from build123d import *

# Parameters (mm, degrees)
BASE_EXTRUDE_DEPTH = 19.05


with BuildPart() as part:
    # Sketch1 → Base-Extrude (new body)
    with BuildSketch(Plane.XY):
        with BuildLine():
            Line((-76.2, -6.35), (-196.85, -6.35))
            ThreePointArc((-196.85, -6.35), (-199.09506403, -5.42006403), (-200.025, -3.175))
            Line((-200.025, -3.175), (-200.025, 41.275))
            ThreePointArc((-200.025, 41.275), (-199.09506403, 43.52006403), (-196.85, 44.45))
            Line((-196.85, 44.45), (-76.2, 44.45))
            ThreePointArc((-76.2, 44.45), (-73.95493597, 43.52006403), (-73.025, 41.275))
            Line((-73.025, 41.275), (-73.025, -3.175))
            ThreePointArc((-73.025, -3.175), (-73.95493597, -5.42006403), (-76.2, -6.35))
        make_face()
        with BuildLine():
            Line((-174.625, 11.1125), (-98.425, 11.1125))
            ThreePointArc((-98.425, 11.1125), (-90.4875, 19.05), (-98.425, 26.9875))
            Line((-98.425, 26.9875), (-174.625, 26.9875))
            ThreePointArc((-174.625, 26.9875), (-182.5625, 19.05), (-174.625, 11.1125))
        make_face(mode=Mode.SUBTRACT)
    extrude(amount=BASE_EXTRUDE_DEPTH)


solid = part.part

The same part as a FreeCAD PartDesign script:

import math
import FreeCAD as App
import Part
import Sketcher

V = App.Vector
Q = App.Units.Quantity

doc = App.newDocument("Part")
body = doc.addObject("PartDesign::Body", "Body")

# Sketch on XY plane
sketch1 = doc.addObject("Sketcher::SketchObject", "Sketch")
body.addObject(sketch1)
sketch1.AttachmentSupport = (doc.XY_Plane, [""])
sketch1.MapMode = "FlatFace"
sketch1.addGeometry([
    Part.LineSegment(V(-196.8, -6.3, 0), V(-76.2, -6.3, 0)),  # 0
    Part.ArcOfCircle(Part.Circle(V(-76.2, -3.2, 0), V(0, 0, 1), 3.2), math.radians(-90), math.radians(0)),  # 1
    Part.LineSegment(V(-73, -3.2, 0), V(-73, 41.3, 0)),  # 2
    Part.ArcOfCircle(Part.Circle(V(-76.2, 41.3, 0), V(0, 0, 1), 3.2), math.radians(0), math.radians(90)),  # 3
    Part.LineSegment(V(-76.2, 44.5, 0), V(-196.8, 44.5, 0)),  # 4
    Part.ArcOfCircle(Part.Circle(V(-196.8, 41.3, 0), V(0, 0, 1), 3.2), math.radians(90), math.radians(180)),  # 5
    Part.LineSegment(V(-200, 41.3, 0), V(-200, -3.2, 0)),  # 6
    Part.ArcOfCircle(Part.Circle(V(-196.8, -3.2, 0), V(0, 0, 1), 3.2), math.radians(-180), math.radians(-90)),  # 7
    Part.ArcOfCircle(Part.Circle(V(-174.6, 19.1, 0), V(0, 0, 1), 7.9), math.radians(90), math.radians(270)),  # 8
    Part.LineSegment(V(-174.6, 27, 0), V(-98.4, 27, 0)),  # 9
    Part.ArcOfCircle(Part.Circle(V(-98.4, 19.1, 0), V(0, 0, 1), 7.9), math.radians(-90), math.radians(90)),  # 10
    Part.LineSegment(V(-98.4, 11.1, 0), V(-174.6, 11.1, 0)),  # 11
], False)
sketch1.addConstraint([
    Sketcher.Constraint("Tangent", 0, 2, 1, 1),
    Sketcher.Constraint("Tangent", 1, 2, 2, 1),
    Sketcher.Constraint("Tangent", 2, 2, 3, 1),
    Sketcher.Constraint("Tangent", 3, 2, 4, 1),
    Sketcher.Constraint("Tangent", 4, 2, 5, 1),
    Sketcher.Constraint("Tangent", 5, 2, 6, 1),
    Sketcher.Constraint("Tangent", 6, 2, 7, 1),
    Sketcher.Constraint("Tangent", 7, 2, 0, 1),
    Sketcher.Constraint("Tangent", 8, 1, 9, 1),
    Sketcher.Constraint("Tangent", 9, 2, 10, 2),
    Sketcher.Constraint("Tangent", 10, 1, 11, 1),
    Sketcher.Constraint("Tangent", 11, 2, 8, 2),
    Sketcher.Constraint("Horizontal", 0),
    Sketcher.Constraint("Vertical", 2),
    Sketcher.Constraint("Horizontal", 4),
    Sketcher.Constraint("Vertical", 6),
    Sketcher.Constraint("Horizontal", 9),
    Sketcher.Constraint("Horizontal", 11),
    Sketcher.Constraint("Equal", 1, 3),
    Sketcher.Constraint("Equal", 3, 5),
    Sketcher.Constraint("Equal", 5, 7),
    Sketcher.Constraint("DistanceX", 9, 1, 9, 2, Q("3 in")),
    Sketcher.Constraint("DistanceX", 1, 3, -1, 1, Q("3 in")),
    Sketcher.Constraint("Radius", 1, Q("0.125 in")),
    Sketcher.Constraint("Radius", 8, Q("0.3125 in")),
    Sketcher.Constraint("DistanceY", 0, 2, 10, 3, Q("1 in")),
    Sketcher.Constraint("DistanceX", 10, 3, 1, 2, Q("1 in")),
    Sketcher.Constraint("DistanceY", 10, 3, 3, 2, Q("1 in")),
    Sketcher.Constraint("DistanceX", 5, 2, 8, 3, Q("1 in")),
    Sketcher.Constraint("DistanceY", -1, 1, 8, 3, Q("0.75 in")),
])
pad1 = doc.addObject("PartDesign::Pad", "Pad")
body.addObject(pad1)
pad1.Profile = sketch1
pad1.Length = Q("0.75 in")

doc.recompute()
